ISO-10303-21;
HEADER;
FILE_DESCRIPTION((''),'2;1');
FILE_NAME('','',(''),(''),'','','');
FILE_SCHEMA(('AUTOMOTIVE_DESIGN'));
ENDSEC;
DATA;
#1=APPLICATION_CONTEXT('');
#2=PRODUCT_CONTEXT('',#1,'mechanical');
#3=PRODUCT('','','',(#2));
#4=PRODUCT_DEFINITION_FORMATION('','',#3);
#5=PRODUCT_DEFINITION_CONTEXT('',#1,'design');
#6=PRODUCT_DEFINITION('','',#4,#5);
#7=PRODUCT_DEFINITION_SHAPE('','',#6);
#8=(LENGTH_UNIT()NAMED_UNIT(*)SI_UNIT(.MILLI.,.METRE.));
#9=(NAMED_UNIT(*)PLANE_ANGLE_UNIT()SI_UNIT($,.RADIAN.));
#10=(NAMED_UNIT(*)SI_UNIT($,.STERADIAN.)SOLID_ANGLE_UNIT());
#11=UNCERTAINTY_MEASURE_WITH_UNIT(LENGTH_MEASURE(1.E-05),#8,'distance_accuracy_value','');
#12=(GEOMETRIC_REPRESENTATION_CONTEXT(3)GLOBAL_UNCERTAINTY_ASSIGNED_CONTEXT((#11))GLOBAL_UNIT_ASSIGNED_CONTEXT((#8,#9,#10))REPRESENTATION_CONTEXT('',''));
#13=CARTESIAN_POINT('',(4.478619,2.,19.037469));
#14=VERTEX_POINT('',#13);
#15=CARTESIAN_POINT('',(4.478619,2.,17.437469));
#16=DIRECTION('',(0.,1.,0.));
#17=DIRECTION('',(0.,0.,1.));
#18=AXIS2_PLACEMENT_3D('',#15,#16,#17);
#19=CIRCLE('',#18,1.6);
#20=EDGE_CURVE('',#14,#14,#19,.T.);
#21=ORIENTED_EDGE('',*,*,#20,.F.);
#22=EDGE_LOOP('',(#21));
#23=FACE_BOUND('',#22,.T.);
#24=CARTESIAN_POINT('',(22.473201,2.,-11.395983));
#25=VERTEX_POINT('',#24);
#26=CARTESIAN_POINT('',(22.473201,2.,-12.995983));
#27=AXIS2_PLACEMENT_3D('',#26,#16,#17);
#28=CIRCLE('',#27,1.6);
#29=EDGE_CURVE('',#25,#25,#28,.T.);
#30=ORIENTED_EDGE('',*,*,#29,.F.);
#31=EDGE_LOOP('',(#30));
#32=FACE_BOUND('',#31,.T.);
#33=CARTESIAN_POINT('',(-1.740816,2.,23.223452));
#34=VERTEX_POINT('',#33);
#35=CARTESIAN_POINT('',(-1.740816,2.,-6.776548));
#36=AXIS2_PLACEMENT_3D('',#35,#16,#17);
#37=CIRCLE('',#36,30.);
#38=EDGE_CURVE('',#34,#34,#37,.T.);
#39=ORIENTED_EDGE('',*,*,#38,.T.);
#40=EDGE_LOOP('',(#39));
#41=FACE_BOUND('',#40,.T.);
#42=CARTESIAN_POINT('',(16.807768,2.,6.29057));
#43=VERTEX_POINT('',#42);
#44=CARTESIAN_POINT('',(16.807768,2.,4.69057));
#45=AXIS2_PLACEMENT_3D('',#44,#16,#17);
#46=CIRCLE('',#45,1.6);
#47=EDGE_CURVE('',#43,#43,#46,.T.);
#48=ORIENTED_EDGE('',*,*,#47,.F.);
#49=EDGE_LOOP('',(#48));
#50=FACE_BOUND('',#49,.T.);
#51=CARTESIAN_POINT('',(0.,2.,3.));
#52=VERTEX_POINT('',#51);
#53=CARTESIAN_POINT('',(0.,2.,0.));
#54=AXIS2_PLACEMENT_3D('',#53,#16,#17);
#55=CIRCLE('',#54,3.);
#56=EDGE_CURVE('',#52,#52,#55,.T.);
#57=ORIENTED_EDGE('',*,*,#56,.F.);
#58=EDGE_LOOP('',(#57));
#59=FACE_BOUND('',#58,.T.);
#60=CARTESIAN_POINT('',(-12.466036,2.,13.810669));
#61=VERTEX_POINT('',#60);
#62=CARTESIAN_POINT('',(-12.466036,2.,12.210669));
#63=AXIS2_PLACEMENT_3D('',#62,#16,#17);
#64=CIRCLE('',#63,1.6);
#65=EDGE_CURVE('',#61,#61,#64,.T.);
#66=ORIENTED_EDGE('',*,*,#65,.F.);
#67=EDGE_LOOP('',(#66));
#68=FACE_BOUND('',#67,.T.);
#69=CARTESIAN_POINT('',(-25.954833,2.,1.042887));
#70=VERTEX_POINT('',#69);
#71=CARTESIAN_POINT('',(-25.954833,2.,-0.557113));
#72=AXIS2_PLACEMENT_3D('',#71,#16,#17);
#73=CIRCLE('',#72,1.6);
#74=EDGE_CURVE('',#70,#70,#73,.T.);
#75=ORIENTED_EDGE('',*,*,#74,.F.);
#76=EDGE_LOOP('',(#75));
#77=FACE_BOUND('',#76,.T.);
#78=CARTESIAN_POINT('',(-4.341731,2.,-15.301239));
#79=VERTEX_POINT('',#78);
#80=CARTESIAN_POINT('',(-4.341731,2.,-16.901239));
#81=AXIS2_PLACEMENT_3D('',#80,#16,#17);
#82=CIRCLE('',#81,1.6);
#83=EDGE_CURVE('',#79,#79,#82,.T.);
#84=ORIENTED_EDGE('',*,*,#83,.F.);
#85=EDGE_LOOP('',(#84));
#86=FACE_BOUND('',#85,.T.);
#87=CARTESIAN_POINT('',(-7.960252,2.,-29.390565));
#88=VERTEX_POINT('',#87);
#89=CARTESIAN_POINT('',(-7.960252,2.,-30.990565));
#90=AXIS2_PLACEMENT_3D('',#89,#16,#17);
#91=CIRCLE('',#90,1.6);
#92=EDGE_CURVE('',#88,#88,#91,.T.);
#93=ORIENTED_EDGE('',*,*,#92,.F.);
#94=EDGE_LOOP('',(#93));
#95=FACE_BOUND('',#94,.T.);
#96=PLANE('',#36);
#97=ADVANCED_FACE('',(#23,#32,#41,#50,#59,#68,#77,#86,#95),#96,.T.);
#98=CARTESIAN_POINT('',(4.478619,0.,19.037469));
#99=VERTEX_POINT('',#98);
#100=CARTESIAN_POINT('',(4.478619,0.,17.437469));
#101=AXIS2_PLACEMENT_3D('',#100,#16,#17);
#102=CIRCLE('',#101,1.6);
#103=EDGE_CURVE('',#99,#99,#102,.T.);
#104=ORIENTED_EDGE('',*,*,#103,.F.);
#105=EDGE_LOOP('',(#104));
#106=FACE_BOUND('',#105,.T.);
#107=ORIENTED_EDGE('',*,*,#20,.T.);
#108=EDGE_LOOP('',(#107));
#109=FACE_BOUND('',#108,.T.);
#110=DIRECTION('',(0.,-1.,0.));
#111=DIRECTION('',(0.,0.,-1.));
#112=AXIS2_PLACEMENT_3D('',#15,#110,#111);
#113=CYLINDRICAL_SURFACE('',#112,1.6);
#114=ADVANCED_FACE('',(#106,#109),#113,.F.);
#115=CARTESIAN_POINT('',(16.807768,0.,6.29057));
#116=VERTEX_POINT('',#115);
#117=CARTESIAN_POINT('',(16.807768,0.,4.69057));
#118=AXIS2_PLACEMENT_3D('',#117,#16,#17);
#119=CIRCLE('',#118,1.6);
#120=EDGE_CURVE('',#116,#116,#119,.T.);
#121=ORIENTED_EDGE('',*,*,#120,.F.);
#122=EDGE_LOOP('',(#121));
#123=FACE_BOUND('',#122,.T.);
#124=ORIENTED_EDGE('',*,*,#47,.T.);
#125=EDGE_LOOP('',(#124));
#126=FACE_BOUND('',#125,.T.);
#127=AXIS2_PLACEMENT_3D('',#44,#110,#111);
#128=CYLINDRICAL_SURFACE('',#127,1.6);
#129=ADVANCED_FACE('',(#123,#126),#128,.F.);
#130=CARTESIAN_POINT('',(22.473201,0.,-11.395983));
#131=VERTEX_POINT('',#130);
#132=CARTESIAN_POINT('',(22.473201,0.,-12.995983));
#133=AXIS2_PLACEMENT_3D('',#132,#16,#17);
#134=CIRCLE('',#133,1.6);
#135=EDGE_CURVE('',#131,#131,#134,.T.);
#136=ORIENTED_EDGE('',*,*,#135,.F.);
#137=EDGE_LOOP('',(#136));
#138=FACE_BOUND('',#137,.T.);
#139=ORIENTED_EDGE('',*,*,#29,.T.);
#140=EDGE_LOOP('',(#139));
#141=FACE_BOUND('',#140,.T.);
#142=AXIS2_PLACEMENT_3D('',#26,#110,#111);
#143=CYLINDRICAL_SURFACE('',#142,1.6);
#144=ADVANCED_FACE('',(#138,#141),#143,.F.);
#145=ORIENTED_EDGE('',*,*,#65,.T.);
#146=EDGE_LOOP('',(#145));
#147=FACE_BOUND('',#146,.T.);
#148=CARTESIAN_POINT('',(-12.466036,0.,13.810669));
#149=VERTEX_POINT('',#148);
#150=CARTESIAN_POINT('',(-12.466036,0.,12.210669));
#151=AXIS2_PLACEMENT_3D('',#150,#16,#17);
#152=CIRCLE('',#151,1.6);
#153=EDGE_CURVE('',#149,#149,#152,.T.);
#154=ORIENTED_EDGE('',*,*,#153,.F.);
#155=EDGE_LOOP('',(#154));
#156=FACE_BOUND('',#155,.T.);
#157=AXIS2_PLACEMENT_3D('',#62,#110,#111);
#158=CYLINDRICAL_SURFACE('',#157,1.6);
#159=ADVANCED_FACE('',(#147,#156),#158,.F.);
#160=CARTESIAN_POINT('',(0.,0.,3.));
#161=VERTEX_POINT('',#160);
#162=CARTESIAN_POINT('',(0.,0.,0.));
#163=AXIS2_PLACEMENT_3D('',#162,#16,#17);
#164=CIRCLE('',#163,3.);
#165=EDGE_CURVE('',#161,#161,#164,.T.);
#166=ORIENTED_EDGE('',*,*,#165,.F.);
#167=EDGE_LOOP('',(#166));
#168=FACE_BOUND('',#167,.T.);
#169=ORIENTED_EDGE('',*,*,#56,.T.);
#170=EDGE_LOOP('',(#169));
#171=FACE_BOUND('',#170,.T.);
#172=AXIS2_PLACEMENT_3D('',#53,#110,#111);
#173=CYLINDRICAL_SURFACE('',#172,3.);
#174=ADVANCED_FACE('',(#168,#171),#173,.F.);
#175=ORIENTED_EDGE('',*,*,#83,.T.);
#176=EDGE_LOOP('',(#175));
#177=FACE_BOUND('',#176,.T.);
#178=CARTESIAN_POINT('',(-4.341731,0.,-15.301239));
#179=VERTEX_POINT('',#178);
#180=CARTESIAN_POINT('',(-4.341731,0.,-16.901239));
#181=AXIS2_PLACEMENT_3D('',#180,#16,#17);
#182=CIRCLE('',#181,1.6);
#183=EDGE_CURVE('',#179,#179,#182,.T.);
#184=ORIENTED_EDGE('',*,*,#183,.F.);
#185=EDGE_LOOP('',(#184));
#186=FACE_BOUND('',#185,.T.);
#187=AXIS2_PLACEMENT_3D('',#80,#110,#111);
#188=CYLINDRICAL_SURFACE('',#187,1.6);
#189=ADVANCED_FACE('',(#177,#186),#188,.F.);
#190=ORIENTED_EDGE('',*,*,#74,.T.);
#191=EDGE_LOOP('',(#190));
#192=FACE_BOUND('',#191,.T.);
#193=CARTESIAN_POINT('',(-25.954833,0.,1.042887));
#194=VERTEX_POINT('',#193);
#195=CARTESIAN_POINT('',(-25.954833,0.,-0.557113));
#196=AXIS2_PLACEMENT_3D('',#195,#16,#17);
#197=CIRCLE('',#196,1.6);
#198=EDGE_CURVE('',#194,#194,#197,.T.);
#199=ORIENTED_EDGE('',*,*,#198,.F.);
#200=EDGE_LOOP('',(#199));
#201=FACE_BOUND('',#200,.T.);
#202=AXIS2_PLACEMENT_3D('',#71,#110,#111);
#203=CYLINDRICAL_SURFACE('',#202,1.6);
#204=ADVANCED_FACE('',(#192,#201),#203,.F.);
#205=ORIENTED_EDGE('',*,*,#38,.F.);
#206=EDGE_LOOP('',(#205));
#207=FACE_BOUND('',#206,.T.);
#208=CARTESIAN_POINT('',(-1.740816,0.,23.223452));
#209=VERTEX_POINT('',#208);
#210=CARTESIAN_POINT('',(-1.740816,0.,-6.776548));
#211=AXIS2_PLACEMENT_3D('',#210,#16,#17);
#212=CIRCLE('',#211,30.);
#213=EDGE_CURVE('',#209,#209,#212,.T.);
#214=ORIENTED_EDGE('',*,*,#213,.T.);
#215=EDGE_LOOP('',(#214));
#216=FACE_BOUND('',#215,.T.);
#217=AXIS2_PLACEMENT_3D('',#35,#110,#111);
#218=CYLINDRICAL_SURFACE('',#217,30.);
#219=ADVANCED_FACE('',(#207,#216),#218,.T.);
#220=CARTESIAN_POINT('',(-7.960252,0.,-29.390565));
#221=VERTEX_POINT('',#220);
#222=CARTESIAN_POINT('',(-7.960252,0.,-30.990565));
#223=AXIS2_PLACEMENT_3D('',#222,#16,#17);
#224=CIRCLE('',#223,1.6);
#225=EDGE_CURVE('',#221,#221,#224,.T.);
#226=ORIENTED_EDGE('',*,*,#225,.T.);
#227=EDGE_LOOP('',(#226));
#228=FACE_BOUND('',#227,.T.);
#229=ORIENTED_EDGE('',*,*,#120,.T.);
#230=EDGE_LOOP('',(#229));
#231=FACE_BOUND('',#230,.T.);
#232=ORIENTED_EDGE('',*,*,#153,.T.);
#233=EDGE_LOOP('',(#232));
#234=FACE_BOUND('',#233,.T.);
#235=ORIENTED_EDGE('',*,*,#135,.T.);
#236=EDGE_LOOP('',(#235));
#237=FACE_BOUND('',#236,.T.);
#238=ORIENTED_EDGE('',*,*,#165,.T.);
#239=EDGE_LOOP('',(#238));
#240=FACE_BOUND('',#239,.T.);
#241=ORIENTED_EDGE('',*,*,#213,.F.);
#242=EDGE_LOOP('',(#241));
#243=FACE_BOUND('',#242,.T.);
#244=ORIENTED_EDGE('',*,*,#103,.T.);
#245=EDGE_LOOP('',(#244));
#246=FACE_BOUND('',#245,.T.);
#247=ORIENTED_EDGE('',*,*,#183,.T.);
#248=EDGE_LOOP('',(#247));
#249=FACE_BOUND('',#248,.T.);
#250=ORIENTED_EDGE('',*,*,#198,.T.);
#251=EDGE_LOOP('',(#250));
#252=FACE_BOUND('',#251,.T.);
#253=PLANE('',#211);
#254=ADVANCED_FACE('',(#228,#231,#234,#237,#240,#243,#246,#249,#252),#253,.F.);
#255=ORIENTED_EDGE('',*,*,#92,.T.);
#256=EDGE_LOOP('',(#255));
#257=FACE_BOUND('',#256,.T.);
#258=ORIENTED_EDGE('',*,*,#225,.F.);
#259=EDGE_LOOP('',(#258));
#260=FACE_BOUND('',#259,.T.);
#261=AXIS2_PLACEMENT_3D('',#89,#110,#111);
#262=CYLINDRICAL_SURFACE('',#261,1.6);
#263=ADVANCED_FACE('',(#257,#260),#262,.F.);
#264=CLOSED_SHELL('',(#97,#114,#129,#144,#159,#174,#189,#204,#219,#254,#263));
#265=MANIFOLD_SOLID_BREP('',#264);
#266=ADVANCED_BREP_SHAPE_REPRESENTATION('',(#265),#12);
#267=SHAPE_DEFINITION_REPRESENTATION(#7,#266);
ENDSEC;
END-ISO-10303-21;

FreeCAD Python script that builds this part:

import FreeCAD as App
import Part
import Sketcher

doc = App.newDocument("Part")
body = doc.addObject("PartDesign::Body", "Body")

sketch1 = body.newObject("Sketcher::SketchObject", "Sketch")
sketch1.AttachmentSupport = (doc.getObject("XZ_Plane"), [""])
sketch1.MapMode = "FlatFace"
sketch1.addGeometry([
    Part.Circle(App.Vector(-1.7, -6.8, 0), App.Vector(0, 0, 1), 30),
    Part.Circle(App.Vector(-8, -31, 0), App.Vector(0, 0, 1), 1.6),
    Part.Circle(App.Vector(-4.3, -16.9, 0), App.Vector(0, 0, 1), 1.6),
    Part.Circle(App.Vector(-26, -0.6, 0), App.Vector(0, 0, 1), 1.6),
    Part.Circle(App.Vector(-12.5, 12.2, 0), App.Vector(0, 0, 1), 1.6),
    Part.Circle(App.Vector(22.5, -13, 0), App.Vector(0, 0, 1), 1.6),
    Part.Circle(App.Vector(0, 0, 0), App.Vector(0, 0, 1), 3),
    Part.Circle(App.Vector(4.5, 17.4, 0), App.Vector(0, 0, 1), 1.6),
    Part.Circle(App.Vector(16.8, 4.7, 0), App.Vector(0, 0, 1), 1.6),
], False)
sketch1.addConstraint([
    Sketcher.Constraint("Coincident", 6, 3, -1, 1),
    Sketcher.Constraint("Equal", 1, 2),
    Sketcher.Constraint("Equal", 2, 3),
    Sketcher.Constraint("Equal", 3, 4),
    Sketcher.Constraint("Equal", 4, 5),
    Sketcher.Constraint("Equal", 5, 7),
    Sketcher.Constraint("Equal", 7, 8),
    Sketcher.Constraint("Diameter", 0, 60.0),
    Sketcher.Constraint("Diameter", 6, 6.0),
    Sketcher.Constraint("Diameter", 1, 3.2),
    Sketcher.Constraint("DistanceX", -1, 1, 5, 3, 22.473201),
    Sketcher.Constraint("DistanceX", 3, 3, 2, 3, 21.613102),
    Sketcher.Constraint("DistanceY", 4, 3, 7, 3, 5.2268),
    Sketcher.Constraint("DistanceY", 8, 3, 7, 3, 12.7469),
    Sketcher.Constraint("DistanceX", 1, 3, -1, 1, 7.960252),
    Sketcher.Constraint("DistanceX", 2, 3, -1, 1, 4.341731),
    Sketcher.Constraint("DistanceY", 2, 3, -1, 1, 16.901239),
    Sketcher.Constraint("DistanceY", -1, 1, 4, 3, 12.210669),
    Sketcher.Constraint("DistanceX", -1, 1, 7, 3, 4.478619),
    Sketcher.Constraint("DistanceY", 2, 3, 0, 3, 10.124691),
    Sketcher.Constraint("DistanceY", 3, 3, 4, 3, 12.767781),
    Sketcher.Constraint("DistanceX", 4, 3, 0, 3, 10.72522),
    Sketcher.Constraint("DistanceY", 1, 3, 5, 3, 17.994582),
    Sketcher.Constraint("DistanceY", 5, 3, 3, 3, 12.438871),
    Sketcher.Constraint("DistanceX", 7, 3, 8, 3, 12.329149),
    Sketcher.Constraint("DistanceX", 0, 3, -1, 1, 1.740816),
])
pad1 = body.newObject("PartDesign::Pad", "Pad")
pad1.Profile = sketch1
pad1.Length = 2
pad1.Reversed = True

doc.recompute()
